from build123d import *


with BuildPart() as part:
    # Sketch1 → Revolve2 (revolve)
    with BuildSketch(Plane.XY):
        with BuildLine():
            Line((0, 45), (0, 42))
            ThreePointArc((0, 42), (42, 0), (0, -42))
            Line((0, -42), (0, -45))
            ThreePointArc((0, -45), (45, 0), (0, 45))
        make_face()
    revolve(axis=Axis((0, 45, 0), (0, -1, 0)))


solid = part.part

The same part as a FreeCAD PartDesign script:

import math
import FreeCAD as App
import Part
import Sketcher
from FreeCAD import Vector
Q = App.Units.Quantity

doc = App.newDocument("Part")
body = doc.addObject("PartDesign::Body", "Body")

# Sketch on XY plane
sketch1 = body.newObject("Sketcher::SketchObject", "Sketch")
sketch1.AttachmentSupport = (doc.getObject("XY_Plane"), [""])
sketch1.MapMode = "FlatFace"
sketch1.addGeometry([
    Part.LineSegment(Vector(0, 45, 0), Vector(0, 42, 0)),
    Part.ArcOfCircle(Part.Circle(Vector(0, 0, 0), Vector(0, 0, 1), 42), math.radians(-90), math.radians(90)),
    Part.LineSegment(Vector(0, -42, 0), Vector(0, -45, 0)),
    Part.ArcOfCircle(Part.Circle(Vector(0, 0, 0), Vector(0, 0, 1), 45), math.radians(-90), math.radians(90)),
], False)
sketch1.addConstraint([
    Sketcher.Constraint("Coincident", 0, 2, 1, 2),
    Sketcher.Constraint("Coincident", 1, 1, 2, 1),
    Sketcher.Constraint("Coincident", 2, 2, 3, 1),
    Sketcher.Constraint("Coincident", 3, 2, 0, 1),
    Sketcher.Constraint("Vertical", 0),
    Sketcher.Constraint("Vertical", 2),
    Sketcher.Constraint("Coincident", 1, 3, -1, 1),
    Sketcher.Constraint("Coincident", 3, 3, -1, 1),
    Sketcher.Constraint("PointOnObject", 0, 2, -2),
    Sketcher.Constraint("PointOnObject", 1, 1, -2),
    Sketcher.Constraint("Radius", 1, Q("42 mm")),
    Sketcher.Constraint("Radius", 3, Q("45 mm")),
])
revolution = body.newObject("PartDesign::Revolution", "Revolution")
revolution.Profile = sketch1
revolution.ReferenceAxis = (sketch1, ["V_Axis"])
revolution.Angle = 360

doc.recompute()
